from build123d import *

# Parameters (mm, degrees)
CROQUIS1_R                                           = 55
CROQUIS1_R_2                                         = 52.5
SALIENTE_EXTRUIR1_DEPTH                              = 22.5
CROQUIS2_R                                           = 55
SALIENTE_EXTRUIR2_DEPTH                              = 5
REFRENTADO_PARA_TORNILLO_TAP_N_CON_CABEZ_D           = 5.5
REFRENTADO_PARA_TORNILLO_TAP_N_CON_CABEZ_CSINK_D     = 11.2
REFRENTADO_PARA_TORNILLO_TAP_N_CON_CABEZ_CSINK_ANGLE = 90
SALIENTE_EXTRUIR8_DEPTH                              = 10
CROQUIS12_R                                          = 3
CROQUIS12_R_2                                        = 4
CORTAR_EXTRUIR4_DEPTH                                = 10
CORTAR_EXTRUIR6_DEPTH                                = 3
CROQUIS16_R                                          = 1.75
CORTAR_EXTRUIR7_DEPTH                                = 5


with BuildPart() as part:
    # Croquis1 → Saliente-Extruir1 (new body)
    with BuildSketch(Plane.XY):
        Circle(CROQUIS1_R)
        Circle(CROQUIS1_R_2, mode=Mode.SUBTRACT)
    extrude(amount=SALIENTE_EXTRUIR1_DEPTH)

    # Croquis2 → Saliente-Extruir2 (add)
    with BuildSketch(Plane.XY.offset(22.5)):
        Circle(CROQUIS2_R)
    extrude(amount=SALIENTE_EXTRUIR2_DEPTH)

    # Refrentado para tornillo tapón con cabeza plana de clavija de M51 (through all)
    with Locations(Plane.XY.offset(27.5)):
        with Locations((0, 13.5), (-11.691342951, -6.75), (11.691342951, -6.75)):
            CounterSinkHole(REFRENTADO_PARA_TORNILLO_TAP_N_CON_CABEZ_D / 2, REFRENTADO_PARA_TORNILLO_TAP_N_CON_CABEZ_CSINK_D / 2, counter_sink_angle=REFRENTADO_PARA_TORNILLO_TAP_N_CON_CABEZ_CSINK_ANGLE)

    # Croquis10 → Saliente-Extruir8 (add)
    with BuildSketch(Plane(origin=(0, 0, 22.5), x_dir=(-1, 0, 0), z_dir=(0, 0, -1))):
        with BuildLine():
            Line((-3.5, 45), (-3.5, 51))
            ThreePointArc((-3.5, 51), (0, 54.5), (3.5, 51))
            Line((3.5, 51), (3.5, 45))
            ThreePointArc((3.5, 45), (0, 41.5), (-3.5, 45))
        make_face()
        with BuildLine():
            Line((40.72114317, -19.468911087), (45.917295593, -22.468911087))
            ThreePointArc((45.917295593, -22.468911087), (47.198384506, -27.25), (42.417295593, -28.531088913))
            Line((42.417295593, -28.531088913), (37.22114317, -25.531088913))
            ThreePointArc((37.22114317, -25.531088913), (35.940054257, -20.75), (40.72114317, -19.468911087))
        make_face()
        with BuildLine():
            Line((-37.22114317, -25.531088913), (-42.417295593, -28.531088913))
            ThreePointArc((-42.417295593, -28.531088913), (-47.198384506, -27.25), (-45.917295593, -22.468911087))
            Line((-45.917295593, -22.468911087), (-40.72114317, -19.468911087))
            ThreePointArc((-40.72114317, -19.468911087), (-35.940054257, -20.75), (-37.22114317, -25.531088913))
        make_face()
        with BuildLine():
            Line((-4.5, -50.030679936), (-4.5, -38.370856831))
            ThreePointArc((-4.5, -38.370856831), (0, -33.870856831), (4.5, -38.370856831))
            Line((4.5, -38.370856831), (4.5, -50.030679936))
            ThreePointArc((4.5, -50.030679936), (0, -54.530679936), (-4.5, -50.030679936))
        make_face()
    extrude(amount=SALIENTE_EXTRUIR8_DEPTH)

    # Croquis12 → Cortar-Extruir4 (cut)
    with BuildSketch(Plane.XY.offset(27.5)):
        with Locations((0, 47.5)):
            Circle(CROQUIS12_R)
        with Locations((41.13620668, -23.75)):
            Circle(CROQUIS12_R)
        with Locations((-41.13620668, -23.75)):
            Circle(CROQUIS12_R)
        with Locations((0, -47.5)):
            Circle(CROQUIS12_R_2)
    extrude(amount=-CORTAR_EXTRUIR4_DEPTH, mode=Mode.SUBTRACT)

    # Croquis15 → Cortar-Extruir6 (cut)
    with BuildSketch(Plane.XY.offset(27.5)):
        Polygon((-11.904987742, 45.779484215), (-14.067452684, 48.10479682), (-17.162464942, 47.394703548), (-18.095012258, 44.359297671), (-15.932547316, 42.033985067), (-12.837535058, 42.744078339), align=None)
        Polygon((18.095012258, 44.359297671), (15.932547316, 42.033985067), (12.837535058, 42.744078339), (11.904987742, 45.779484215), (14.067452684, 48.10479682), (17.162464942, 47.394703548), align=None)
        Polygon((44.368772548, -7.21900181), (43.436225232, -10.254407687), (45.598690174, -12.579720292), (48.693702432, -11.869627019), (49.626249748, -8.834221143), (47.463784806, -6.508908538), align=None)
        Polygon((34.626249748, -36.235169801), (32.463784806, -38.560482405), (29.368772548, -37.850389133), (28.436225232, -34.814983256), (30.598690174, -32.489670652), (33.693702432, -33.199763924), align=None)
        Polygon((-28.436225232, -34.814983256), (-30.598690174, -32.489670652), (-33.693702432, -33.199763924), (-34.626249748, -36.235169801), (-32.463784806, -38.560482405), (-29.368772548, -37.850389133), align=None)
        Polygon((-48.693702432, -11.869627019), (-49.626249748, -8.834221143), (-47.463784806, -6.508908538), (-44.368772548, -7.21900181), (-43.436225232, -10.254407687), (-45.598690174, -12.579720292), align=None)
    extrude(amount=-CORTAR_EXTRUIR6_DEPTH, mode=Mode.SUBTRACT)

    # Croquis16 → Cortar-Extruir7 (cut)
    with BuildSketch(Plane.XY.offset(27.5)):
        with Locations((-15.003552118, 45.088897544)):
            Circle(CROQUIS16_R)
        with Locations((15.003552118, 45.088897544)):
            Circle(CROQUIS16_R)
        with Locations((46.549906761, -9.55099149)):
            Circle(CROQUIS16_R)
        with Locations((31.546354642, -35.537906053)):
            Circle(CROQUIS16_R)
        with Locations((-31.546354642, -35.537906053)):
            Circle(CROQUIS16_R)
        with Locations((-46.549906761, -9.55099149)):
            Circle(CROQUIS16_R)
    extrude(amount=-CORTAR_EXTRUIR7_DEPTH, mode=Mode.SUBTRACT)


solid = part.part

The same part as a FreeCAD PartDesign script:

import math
import FreeCAD as App
import Part
import Sketcher
from FreeCAD import Vector
Q = App.Units.Quantity


def add_polygon(sketch, points):
    """Adds a closed chain of lines whose ends are joined by coincident constraints."""
    first, n = sketch.GeometryCount, len(points)
    for a, b in zip(points, points[1:] + points[:1]):
        sketch.addGeometry(Part.LineSegment(App.Vector(*a, 0), App.Vector(*b, 0)), False)
    for i in range(n):
        sketch.addConstraint(Sketcher.Constraint("Coincident", first + i, 2, first + (i + 1) % n, 1))

doc = App.newDocument("Part")
body = doc.addObject("PartDesign::Body", "Body")

# Sketch on XY plane
sketch1 = body.newObject("Sketcher::SketchObject", "Sketch")
sketch1.AttachmentSupport = (doc.getObject("XY_Plane"), [""])
sketch1.MapMode = "FlatFace"
sketch1.addGeometry([
    Part.Circle(Vector(0, 0, 0), Vector(0, 0, 1), 55),
    Part.Circle(Vector(0, 0, 0), Vector(0, 0, 1), 52.5),
], False)
sketch1.addConstraint([
    Sketcher.Constraint("Coincident", 0, 3, -1, 1),
    Sketcher.Constraint("Coincident", 1, 3, -1, 1),
    Sketcher.Constraint("Diameter", 0, 110.0),
    Sketcher.Constraint("Diameter", 1, 105.0),
])
pad1 = body.newObject("PartDesign::Pad", "Pad")
pad1.Profile = sketch1
pad1.Length = 22.5

# Sketch on XY plane
sketch2 = body.newObject("Sketcher::SketchObject", "Sketch001")
sketch2.AttachmentSupport = (doc.getObject("XY_Plane"), [""])
sketch2.MapMode = "FlatFace"
sketch2.AttachmentOffset = App.Placement(Vector(0, 0, 22.5), App.Rotation())
sketch2.addGeometry(Part.Circle(Vector(0, 0, 0), Vector(0, 0, 1), 55), False)
sketch2.addConstraint([
    Sketcher.Constraint("Coincident", 0, 3, -1, 1),
    Sketcher.Constraint("Diameter", 0, 110.0),
])
pad2 = body.newObject("PartDesign::Pad", "Pad001")
pad2.Profile = sketch2
pad2.Length = 5

# Sketch on XY plane
sketch3 = body.newObject("Sketcher::SketchObject", "Sketch002")
sketch3.AttachmentSupport = (doc.getObject("XY_Plane"), [""])
sketch3.MapMode = "FlatFace"
sketch3.AttachmentOffset = App.Placement(Vector(0, 0, 27.5), App.Rotation())
sketch3.addGeometry([
    Part.Circle(Vector(0, 13.5, 0), Vector(0, 0, 1), 2.75),
    Part.Circle(Vector(-11.691343, -6.75, 0), Vector(0, 0, 1), 2.75),
    Part.Circle(Vector(11.691343, -6.75, 0), Vector(0, 0, 1), 2.75),
], False)
sketch3.addConstraint([
    Sketcher.Constraint("Equal", 0, 1),
    Sketcher.Constraint("Equal", 1, 2),
    Sketcher.Constraint("Symmetric", 1, 3, 2, 3, -2),
    Sketcher.Constraint("PointOnObject", 0, 3, -2),
    Sketcher.Constraint("Diameter", 0, 5.5),
    Sketcher.Constraint("DistanceY", -1, 1, 0, 3, 13.5),
    Sketcher.Constraint("DistanceY", 1, 3, -1, 1, 6.75),
    Sketcher.Constraint("DistanceX", 1, 3, -1, 1, 11.691343),
])
doc.recompute()
hole = body.newObject("PartDesign::Hole", "Hole")
hole.Profile = sketch3
hole.ThreadType = "None"
hole.Diameter = 5.5
hole.DepthType = "ThroughAll"
hole.HoleCutType = "Countersink"
hole.HoleCutDiameter = 11.2
hole.HoleCutCountersinkAngle = 90

# Sketch on XY plane
sketch4 = body.newObject("Sketcher::SketchObject", "Sketch003")
sketch4.AttachmentSupport = (doc.getObject("XY_Plane"), [""])
sketch4.MapMode = "FlatFace"
sketch4.AttachmentOffset = App.Placement(Vector(0, 0, 22.5), App.Rotation())
sketch4.addGeometry([
    Part.LineSegment(Vector(3.5, 51, 0), Vector(3.5, 45, 0)),  # 0
    Part.ArcOfCircle(Part.Circle(Vector(0, 45, 0), Vector(0, 0, 1), 3.5), math.radians(180), math.radians(360)),  # 1
    Part.LineSegment(Vector(-3.5, 45, 0), Vector(-3.5, 51, 0)),  # 2
    Part.ArcOfCircle(Part.Circle(Vector(0, 51, 0), Vector(0, 0, 1), 3.5), math.radians(0), math.radians(180)),  # 3
    Part.LineSegment(Vector(-45.917296, -22.468911, 0), Vector(-40.721143, -19.468911, 0)),  # 4
    Part.ArcOfCircle(Part.Circle(Vector(-38.971143, -22.5, 0), Vector(0, 0, 1), 3.5), math.radians(-60), math.radians(120)),  # 5
    Part.LineSegment(Vector(-37.221143, -25.531089, 0), Vector(-42.417296, -28.531089, 0)),  # 6
    Part.ArcOfCircle(Part.Circle(Vector(-44.167296, -25.5, 0), Vector(0, 0, 1), 3.5), math.radians(120), math.radians(300)),  # 7
    Part.LineSegment(Vector(42.417296, -28.531089, 0), Vector(37.221143, -25.531089, 0)),  # 8
    Part.ArcOfCircle(Part.Circle(Vector(38.971143, -22.5, 0), Vector(0, 0, 1), 3.5), math.radians(60), math.radians(240)),  # 9
    Part.LineSegment(Vector(40.721143, -19.468911, 0), Vector(45.917296, -22.468911, 0)),  # 10
    Part.ArcOfCircle(Part.Circle(Vector(44.167296, -25.5, 0), Vector(0, 0, 1), 3.5), math.radians(-120), math.radians(60)),  # 11
    Part.LineSegment(Vector(4.5, -38.370857, 0), Vector(4.5, -50.03068, 0)),  # 12
    Part.ArcOfCircle(Part.Circle(Vector(0, -50.03068, 0), Vector(0, 0, 1), 4.5), math.radians(180), math.radians(360)),  # 13
    Part.LineSegment(Vector(-4.5, -50.03068, 0), Vector(-4.5, -38.370857, 0)),  # 14
    Part.ArcOfCircle(Part.Circle(Vector(0, -38.370857, 0), Vector(0, 0, 1), 4.5), math.radians(0), math.radians(180)),  # 15
], False)
sketch4.addConstraint([
    Sketcher.Constraint("Tangent", 0, 2, 1, 2),
    Sketcher.Constraint("Tangent", 1, 1, 2, 1),
    Sketcher.Constraint("Tangent", 2, 2, 3, 2),
    Sketcher.Constraint("Tangent", 3, 1, 0, 1),
    Sketcher.Constraint("Tangent", 4, 2, 5, 2),
    Sketcher.Constraint("Tangent", 5, 1, 6, 1),
    Sketcher.Constraint("Tangent", 6, 2, 7, 2),
    Sketcher.Constraint("Tangent", 7, 1, 4, 1),
    Sketcher.Constraint("Tangent", 8, 2, 9, 2),
    Sketcher.Constraint("Tangent", 9, 1, 10, 1),
    Sketcher.Constraint("Tangent", 10, 2, 11, 2),
    Sketcher.Constraint("Tangent", 11, 1, 8, 1),
    Sketcher.Constraint("Tangent", 12, 2, 13, 2),
    Sketcher.Constraint("Tangent", 13, 1, 14, 1),
    Sketcher.Constraint("Tangent", 14, 2, 15, 2),
    Sketcher.Constraint("Tangent", 15, 1, 12, 1),
    Sketcher.Constraint("Vertical", 0),
    Sketcher.Constraint("Vertical", 2),
    Sketcher.Constraint("Vertical", 12),
    Sketcher.Constraint("Vertical", 14),
    Sketcher.Constraint("Equal", 3, 5),
    Sketcher.Constraint("Equal", 5, 7),
    Sketcher.Constraint("Equal", 7, 9),
    Sketcher.Constraint("Equal", 9, 11),
    Sketcher.Constraint("Symmetric", 5, 3, 9, 3, -2),
    Sketcher.Constraint("Symmetric", 7, 3, 11, 3, -2),
    Sketcher.Constraint("PointOnObject", 1, 3, -2),
    Sketcher.Constraint("PointOnObject", 13, 3, -2),
    Sketcher.Constraint("Radius", 1, 3.5),
    Sketcher.Constraint("Radius", 13, 4.5),
    Sketcher.Constraint("DistanceY", 0, 2, 0, 1, 6.0),
    Sketcher.Constraint("Angle", 4, Q("30 deg")),
    Sketcher.Constraint("Distance", 4, 6.0),
    Sketcher.Constraint("DistanceY", -1, 1, 1, 3, 45.0),
    Sketcher.Constraint("DistanceY", 5, 3, -1, 1, 22.5),
    Sketcher.Constraint("DistanceY", 12, 2, 12, 1, 11.659823),
    Sketcher.Constraint("DistanceY", 13, 3, -1, 1, 50.03068),
    Sketcher.Constraint("DistanceX", 7, 3, 9, 3, 83.138439),
])
pad3 = body.newObject("PartDesign::Pad", "Pad002")
pad3.Profile = sketch4
pad3.Length = 10
pad3.Reversed = True

# Sketch on XY plane
sketch5 = body.newObject("Sketcher::SketchObject", "Sketch004")
sketch5.AttachmentSupport = (doc.getObject("XY_Plane"), [""])
sketch5.MapMode = "FlatFace"
sketch5.AttachmentOffset = App.Placement(Vector(0, 0, 27.5), App.Rotation())
sketch5.addGeometry([
    Part.Circle(Vector(0, 47.5, 0), Vector(0, 0, 1), 3),
    Part.Circle(Vector(41.136207, -23.75, 0), Vector(0, 0, 1), 3),
    Part.Circle(Vector(-41.136207, -23.75, 0), Vector(0, 0, 1), 3),
    Part.Circle(Vector(0, -47.5, 0), Vector(0, 0, 1), 4),
], False)
sketch5.addConstraint([
    Sketcher.Constraint("Equal", 0, 1),
    Sketcher.Constraint("Equal", 1, 2),
    Sketcher.Constraint("Symmetric", 0, 3, 3, 3, -1, 1),
    Sketcher.Constraint("Symmetric", 1, 3, 2, 3, -2),
    Sketcher.Constraint("PointOnObject", 0, 3, -2),
    Sketcher.Constraint("Diameter", 0, 6.0),
    Sketcher.Constraint("Diameter", 3, 8.0),
    Sketcher.Constraint("DistanceY", 3, 3, 0, 3, 95.0),
    Sketcher.Constraint("DistanceY", 1, 3, -1, 1, 23.75),
    Sketcher.Constraint("DistanceX", -1, 1, 1, 3, 41.136207),
])
pocket1 = body.newObject("PartDesign::Pocket", "Pocket")
pocket1.Profile = sketch5
pocket1.Length = 10

# Sketch on XY plane
sketch6 = body.newObject("Sketcher::SketchObject", "Sketch005")
sketch6.AttachmentSupport = (doc.getObject("XY_Plane"), [""])
sketch6.MapMode = "FlatFace"
sketch6.AttachmentOffset = App.Placement(Vector(0, 0, 27.5), App.Rotation())
add_polygon(sketch6, [(-11.904988, 45.779484), (-14.067453, 48.104797), (-17.162465, 47.394704), (-18.095012, 44.359298), (-15.932547, 42.033985), (-12.837535, 42.744078)])  # lines 0-5
add_polygon(sketch6, [(15.932547, 42.033985), (18.095012, 44.359298), (17.162465, 47.394704), (14.067453, 48.104797), (11.904988, 45.779484), (12.837535, 42.744078)])  # lines 6-11
add_polygon(sketch6, [(44.368773, -7.219002), (43.436225, -10.254408), (45.59869, -12.57972), (48.693702, -11.869627), (49.62625, -8.834221), (47.463785, -6.508909)])  # lines 12-17
add_polygon(sketch6, [(32.463785, -38.560482), (34.62625, -36.23517), (33.693702, -33.199764), (30.59869, -32.489671), (28.436225, -34.814983), (29.368773, -37.850389)])  # lines 18-23
add_polygon(sketch6, [(-28.436225, -34.814983), (-30.59869, -32.489671), (-33.693702, -33.199764), (-34.62625, -36.23517), (-32.463785, -38.560482), (-29.368773, -37.850389)])  # lines 24-29
add_polygon(sketch6, [(-49.62625, -8.834221), (-48.693702, -11.869627), (-45.59869, -12.57972), (-43.436225, -10.254408), (-44.368773, -7.219002), (-47.463785, -6.508909)])  # lines 30-35
sketch6.addConstraint([
    Sketcher.Constraint("Symmetric", 2, 2, 6, 2, -2),
    Sketcher.Constraint("Symmetric", 1, 2, 7, 2, -2),
    Sketcher.Constraint("Symmetric", 0, 2, 8, 2, -2),
    Sketcher.Constraint("Symmetric", 5, 2, 9, 2, -2),
    Sketcher.Constraint("Symmetric", 4, 2, 10, 2, -2),
    Sketcher.Constraint("Symmetric", 3, 2, 11, 2, -2),
    Sketcher.Constraint("Symmetric", 20, 2, 24, 2, -2),
    Sketcher.Constraint("Symmetric", 19, 2, 25, 2, -2),
    Sketcher.Constraint("Symmetric", 18, 2, 26, 2, -2),
    Sketcher.Constraint("Symmetric", 23, 2, 27, 2, -2),
    Sketcher.Constraint("Symmetric", 22, 2, 28, 2, -2),
    Sketcher.Constraint("Symmetric", 21, 2, 29, 2, -2),
    Sketcher.Constraint("Symmetric", 14, 2, 30, 2, -2),
    Sketcher.Constraint("Symmetric", 13, 2, 31, 2, -2),
    Sketcher.Constraint("Symmetric", 12, 2, 32, 2, -2),
    Sketcher.Constraint("Symmetric", 17, 2, 33, 2, -2),
    Sketcher.Constraint("Symmetric", 16, 2, 34, 2, -2),
    Sketcher.Constraint("Symmetric", 15, 2, 35, 2, -2),
    Sketcher.Constraint("Parallel", 0, 3),
    Sketcher.Constraint("Parallel", 1, 4),
    Sketcher.Constraint("Parallel", 2, 5),
    Sketcher.Constraint("Parallel", 5, 12),
    Sketcher.Constraint("Parallel", 3, 13),
    Sketcher.Constraint("Parallel", 4, 14),
    Sketcher.Constraint("Parallel", 12, 15),
    Sketcher.Constraint("Parallel", 13, 16),
    Sketcher.Constraint("Parallel", 14, 17),
    Sketcher.Constraint("Parallel", 9, 18),
    Sketcher.Constraint("Parallel", 10, 19),
    Sketcher.Constraint("Parallel", 11, 20),
    Sketcher.Constraint("Parallel", 18, 21),
    Sketcher.Constraint("Parallel", 19, 22),
    Sketcher.Constraint("Parallel", 20, 23),
    Sketcher.Constraint("Equal", 0, 1),
    Sketcher.Constraint("Equal", 1, 2),
    Sketcher.Constraint("Equal", 2, 3),
    Sketcher.Constraint("Equal", 11, 12),
    Sketcher.Constraint("Equal", 12, 13),
    Sketcher.Constraint("Equal", 13, 14),
    Sketcher.Constraint("Equal", 14, 15),
    Sketcher.Constraint("Equal", 17, 18),
    Sketcher.Constraint("Equal", 18, 19),
    Sketcher.Constraint("Equal", 19, 20),
    Sketcher.Constraint("Equal", 20, 21),
    Sketcher.Constraint("DistanceX", 5, 2, 6, 2, 30.0),
    Sketcher.Constraint("DistanceX", 18, 2, 15, 2, 15.0),
    Sketcher.Constraint("DistanceY", 17, 2, -1, 1, 7.219002),
    Sketcher.Constraint("DistanceY", 2, 2, 0, 2, 3.745499),
    Sketcher.Constraint("DistanceY", 13, 2, 10, 2, 55.323799),
    Sketcher.Constraint("DistanceY", -1, 1, 4, 2, 42.744078),
    Sketcher.Constraint("DistanceX", -1, 1, 13, 2, 45.59869),
    Sketcher.Constraint("DistanceX", -1, 1, 15, 2, 49.62625),
    Sketcher.Constraint("DistanceY", 16, 2, -1, 1, 6.508909),
    Sketcher.Constraint("DistanceY", 18, 2, -1, 1, 36.23517),
])
pocket2 = body.newObject("PartDesign::Pocket", "Pocket001")
pocket2.Profile = sketch6
pocket2.Length = 3

# Sketch on XY plane
sketch7 = body.newObject("Sketcher::SketchObject", "Sketch006")
sketch7.AttachmentSupport = (doc.getObject("XY_Plane"), [""])
sketch7.MapMode = "FlatFace"
sketch7.AttachmentOffset = App.Placement(Vector(0, 0, 27.5), App.Rotation())
sketch7.addGeometry([
    Part.Circle(Vector(-15.003552, 45.088898, 0), Vector(0, 0, 1), 1.75),  # 0
    Part.Circle(Vector(15.003552, 45.088898, 0), Vector(0, 0, 1), 1.75),  # 1
    Part.Circle(Vector(46.549907, -9.550991, 0), Vector(0, 0, 1), 1.75),  # 2
    Part.Circle(Vector(31.546355, -35.537906, 0), Vector(0, 0, 1), 1.75),  # 3
    Part.Circle(Vector(-31.546355, -35.537906, 0), Vector(0, 0, 1), 1.75),  # 4
    Part.Circle(Vector(-46.549907, -9.550991, 0), Vector(0, 0, 1), 1.75),  # 5
], False)
sketch7.addConstraint([
    Sketcher.Constraint("Equal", 0, 1),
    Sketcher.Constraint("Equal", 1, 2),
    Sketcher.Constraint("Equal", 2, 3),
    Sketcher.Constraint("Equal", 3, 4),
    Sketcher.Constraint("Equal", 4, 5),
    Sketcher.Constraint("Symmetric", 0, 3, 1, 3, -2),
    Sketcher.Constraint("Symmetric", 3, 3, 4, 3, -2),
    Sketcher.Constraint("Symmetric", 2, 3, 5, 3, -2),
    Sketcher.Constraint("Diameter", 0, 3.5),
    Sketcher.Constraint("DistanceY", 2, 3, -1, 1, 9.550991),
    Sketcher.Constraint("DistanceY", 2, 3, 1, 3, 54.639889),
    Sketcher.Constraint("DistanceX", 0, 3, 2, 3, 61.553459),
    Sketcher.Constraint("DistanceX", 4, 3, 3, 3, 63.092709),
    Sketcher.Constraint("DistanceX", 4, 3, 2, 3, 78.096261),
    Sketcher.Constraint("DistanceY", 3, 3, -1, 1, 35.537906),
])
pocket3 = body.newObject("PartDesign::Pocket", "Pocket002")
pocket3.Profile = sketch7
pocket3.Length = 5

doc.recompute()
